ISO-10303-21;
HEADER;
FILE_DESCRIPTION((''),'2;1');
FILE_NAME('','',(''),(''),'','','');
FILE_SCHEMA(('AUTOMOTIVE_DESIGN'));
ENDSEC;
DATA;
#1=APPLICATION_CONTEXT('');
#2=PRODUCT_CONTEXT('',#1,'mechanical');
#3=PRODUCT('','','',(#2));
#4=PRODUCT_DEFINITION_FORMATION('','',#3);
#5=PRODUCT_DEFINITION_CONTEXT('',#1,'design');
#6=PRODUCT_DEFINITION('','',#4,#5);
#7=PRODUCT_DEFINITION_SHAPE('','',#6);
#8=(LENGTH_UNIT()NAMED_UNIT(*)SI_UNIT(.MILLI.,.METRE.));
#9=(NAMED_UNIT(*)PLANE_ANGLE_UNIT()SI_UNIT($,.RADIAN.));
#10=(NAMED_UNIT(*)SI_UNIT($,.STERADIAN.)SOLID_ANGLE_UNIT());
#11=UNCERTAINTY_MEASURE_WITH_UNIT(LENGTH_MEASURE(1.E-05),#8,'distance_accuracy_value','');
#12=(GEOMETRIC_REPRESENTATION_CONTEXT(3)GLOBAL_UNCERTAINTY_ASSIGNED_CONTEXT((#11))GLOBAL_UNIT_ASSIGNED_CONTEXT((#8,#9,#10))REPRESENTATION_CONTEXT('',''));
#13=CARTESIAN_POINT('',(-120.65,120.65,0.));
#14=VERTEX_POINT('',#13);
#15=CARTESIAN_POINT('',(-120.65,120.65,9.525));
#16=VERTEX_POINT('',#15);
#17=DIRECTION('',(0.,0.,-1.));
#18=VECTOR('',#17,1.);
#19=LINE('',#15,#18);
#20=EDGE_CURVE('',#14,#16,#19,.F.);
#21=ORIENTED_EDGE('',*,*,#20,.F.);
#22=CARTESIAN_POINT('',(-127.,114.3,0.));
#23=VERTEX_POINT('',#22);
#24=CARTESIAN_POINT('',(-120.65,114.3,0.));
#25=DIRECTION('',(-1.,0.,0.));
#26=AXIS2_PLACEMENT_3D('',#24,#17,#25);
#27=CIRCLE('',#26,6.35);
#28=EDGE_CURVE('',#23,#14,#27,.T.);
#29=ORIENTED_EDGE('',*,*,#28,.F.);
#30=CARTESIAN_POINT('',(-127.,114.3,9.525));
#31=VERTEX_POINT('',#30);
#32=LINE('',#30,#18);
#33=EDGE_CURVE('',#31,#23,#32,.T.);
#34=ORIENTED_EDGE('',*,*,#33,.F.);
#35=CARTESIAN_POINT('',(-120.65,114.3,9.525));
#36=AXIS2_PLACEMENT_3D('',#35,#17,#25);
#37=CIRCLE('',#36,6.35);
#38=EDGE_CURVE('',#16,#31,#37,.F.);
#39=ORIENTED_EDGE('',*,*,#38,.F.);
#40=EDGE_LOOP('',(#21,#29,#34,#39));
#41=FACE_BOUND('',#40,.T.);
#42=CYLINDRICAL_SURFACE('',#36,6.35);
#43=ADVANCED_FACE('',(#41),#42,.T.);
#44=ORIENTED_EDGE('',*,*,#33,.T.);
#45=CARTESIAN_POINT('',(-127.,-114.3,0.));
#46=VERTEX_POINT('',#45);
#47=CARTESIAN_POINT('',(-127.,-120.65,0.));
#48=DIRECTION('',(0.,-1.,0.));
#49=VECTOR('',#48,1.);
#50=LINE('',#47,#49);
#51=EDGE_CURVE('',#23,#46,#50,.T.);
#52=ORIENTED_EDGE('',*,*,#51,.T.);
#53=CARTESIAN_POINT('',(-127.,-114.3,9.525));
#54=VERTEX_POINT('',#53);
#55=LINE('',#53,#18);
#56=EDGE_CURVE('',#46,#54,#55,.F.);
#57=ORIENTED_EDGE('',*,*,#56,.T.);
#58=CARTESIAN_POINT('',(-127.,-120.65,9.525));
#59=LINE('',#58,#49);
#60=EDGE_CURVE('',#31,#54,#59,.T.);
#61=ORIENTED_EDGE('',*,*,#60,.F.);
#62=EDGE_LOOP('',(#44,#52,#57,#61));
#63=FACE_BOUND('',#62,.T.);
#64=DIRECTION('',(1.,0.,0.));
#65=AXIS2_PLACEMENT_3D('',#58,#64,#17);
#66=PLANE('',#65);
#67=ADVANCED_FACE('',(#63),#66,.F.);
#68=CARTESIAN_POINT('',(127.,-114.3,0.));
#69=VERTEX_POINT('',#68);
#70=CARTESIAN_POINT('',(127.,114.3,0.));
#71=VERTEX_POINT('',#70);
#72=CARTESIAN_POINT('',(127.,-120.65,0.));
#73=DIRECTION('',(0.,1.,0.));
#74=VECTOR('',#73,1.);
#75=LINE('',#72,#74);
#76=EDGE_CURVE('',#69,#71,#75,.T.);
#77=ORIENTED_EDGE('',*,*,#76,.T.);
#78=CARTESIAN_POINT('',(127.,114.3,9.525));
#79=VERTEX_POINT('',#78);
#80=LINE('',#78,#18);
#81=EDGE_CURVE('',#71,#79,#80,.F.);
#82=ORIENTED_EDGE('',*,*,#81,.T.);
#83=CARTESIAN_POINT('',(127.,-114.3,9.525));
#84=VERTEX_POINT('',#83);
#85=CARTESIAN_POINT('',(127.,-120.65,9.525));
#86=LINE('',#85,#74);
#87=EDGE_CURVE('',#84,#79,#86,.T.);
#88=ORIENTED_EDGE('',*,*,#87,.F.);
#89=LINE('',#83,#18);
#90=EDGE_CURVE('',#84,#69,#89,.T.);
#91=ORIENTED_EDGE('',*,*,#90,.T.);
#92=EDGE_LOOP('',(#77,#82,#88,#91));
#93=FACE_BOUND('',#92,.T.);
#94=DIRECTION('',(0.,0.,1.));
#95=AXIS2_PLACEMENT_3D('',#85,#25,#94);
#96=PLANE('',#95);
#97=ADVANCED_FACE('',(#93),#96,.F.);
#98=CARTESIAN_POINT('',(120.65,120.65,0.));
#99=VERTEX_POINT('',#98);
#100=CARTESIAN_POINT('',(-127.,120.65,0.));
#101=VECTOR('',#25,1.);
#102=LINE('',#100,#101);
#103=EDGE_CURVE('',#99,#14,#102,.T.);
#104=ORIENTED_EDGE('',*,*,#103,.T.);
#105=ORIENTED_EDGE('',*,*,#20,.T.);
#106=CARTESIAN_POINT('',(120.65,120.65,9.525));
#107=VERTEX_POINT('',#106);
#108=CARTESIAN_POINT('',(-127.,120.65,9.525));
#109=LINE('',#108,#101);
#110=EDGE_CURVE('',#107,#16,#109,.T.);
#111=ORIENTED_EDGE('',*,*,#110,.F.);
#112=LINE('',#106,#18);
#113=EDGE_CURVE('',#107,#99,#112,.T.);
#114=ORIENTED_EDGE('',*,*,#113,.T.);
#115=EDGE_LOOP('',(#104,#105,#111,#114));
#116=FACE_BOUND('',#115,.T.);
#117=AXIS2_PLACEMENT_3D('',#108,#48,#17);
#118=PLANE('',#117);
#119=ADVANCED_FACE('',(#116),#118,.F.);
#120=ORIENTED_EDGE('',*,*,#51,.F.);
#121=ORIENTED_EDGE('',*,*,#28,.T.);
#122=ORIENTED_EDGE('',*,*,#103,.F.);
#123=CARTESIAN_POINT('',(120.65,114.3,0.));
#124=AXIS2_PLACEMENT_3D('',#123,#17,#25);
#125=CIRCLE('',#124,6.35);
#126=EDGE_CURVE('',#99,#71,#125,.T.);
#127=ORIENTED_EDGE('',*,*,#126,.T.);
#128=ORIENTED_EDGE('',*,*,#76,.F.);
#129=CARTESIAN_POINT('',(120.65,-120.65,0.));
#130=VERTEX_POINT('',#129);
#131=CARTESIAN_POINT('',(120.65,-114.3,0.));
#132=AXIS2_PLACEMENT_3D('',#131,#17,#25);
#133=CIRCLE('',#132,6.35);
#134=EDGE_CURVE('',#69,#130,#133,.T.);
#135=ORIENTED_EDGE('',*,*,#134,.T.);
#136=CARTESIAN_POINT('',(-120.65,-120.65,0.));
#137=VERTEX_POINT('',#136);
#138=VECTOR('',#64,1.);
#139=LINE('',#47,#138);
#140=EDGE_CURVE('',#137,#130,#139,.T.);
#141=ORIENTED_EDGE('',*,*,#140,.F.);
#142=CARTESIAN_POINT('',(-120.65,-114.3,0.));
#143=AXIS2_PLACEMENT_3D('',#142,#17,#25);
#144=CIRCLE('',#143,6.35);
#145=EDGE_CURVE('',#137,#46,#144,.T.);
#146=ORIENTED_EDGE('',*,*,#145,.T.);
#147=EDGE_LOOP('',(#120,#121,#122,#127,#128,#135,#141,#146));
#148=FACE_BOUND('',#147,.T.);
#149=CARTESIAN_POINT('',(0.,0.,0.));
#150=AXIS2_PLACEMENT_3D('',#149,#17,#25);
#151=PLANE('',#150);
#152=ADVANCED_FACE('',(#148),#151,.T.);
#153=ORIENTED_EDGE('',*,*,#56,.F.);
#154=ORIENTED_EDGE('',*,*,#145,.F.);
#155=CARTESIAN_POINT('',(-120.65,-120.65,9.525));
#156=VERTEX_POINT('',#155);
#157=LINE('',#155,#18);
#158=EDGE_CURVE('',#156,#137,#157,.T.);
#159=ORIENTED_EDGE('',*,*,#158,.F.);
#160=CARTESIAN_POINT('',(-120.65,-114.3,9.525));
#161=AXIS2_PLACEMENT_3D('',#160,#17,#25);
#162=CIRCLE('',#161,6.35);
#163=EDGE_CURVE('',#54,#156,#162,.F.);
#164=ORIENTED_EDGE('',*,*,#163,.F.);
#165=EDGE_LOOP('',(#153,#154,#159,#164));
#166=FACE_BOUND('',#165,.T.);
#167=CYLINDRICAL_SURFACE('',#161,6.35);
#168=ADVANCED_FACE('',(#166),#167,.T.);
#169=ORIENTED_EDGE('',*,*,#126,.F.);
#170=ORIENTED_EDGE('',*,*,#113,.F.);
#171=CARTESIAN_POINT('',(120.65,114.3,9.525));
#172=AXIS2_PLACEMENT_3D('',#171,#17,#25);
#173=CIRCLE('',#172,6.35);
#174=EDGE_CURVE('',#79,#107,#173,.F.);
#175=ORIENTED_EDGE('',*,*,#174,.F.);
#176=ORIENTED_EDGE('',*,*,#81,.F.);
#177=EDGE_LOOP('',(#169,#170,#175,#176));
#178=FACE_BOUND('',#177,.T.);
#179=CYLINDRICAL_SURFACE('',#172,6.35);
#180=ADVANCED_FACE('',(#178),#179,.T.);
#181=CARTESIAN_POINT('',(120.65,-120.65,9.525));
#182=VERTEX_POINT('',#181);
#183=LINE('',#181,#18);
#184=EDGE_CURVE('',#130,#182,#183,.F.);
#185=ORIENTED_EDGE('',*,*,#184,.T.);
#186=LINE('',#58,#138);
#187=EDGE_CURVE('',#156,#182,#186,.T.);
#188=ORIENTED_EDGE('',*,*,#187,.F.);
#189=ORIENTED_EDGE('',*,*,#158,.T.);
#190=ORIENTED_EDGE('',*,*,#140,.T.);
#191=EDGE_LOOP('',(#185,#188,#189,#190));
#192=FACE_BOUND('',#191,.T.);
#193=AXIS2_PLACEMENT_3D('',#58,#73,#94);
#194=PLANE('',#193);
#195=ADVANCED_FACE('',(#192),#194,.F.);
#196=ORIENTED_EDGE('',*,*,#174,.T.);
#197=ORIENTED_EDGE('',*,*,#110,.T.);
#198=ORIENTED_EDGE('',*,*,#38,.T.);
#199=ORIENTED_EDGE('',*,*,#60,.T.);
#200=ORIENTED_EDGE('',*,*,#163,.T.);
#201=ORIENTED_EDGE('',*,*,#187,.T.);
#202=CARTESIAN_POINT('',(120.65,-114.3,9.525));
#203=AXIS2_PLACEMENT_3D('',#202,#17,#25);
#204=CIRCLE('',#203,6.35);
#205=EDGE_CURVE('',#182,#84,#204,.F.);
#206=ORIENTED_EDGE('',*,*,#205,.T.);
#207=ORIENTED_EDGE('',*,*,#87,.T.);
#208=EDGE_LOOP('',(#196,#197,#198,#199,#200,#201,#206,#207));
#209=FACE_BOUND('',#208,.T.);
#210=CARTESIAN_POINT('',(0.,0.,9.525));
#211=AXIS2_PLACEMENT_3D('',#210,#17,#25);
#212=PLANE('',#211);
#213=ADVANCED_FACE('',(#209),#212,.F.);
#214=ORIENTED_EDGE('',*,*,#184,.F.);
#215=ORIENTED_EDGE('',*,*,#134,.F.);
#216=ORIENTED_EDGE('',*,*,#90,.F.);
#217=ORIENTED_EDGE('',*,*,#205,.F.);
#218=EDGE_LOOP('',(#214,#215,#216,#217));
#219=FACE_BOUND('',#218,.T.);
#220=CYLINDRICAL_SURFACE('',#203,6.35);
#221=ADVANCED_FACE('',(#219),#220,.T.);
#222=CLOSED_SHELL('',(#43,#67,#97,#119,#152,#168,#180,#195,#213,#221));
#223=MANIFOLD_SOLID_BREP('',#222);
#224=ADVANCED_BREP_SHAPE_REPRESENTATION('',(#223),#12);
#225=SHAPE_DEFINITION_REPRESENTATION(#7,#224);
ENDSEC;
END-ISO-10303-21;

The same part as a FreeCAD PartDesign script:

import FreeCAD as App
import Part
import Sketcher
Q = App.Units.Quantity


def edges_at(feature, points):
    """Names of the edges that pass closest to the given points."""
    edges = feature.Shape.Edges
    near = lambda p: min(range(len(edges)), key=lambda i: edges[i].distToShape(Part.Vertex(*p))[0])
    return sorted({f"Edge{near(p) + 1}" for p in points})

doc = App.newDocument("Part")
body = doc.addObject("PartDesign::Body", "Body")

sketch1 = doc.addObject("Sketcher::SketchObject", "Sketch")
body.addObject(sketch1)
sketch1.AttachmentSupport = (doc.XY_Plane, [""])
sketch1.MapMode = "FlatFace"
sketch1.addGeometry([
    Part.LineSegment(App.Vector(-127, 121, 0), App.Vector(-127, -121, 0)),
    Part.LineSegment(App.Vector(-127, -121, 0), App.Vector(127, -121, 0)),
    Part.LineSegment(App.Vector(127, -121, 0), App.Vector(127, 121, 0)),
    Part.LineSegment(App.Vector(127, 121, 0), App.Vector(-127, 121, 0)),
], False)
sketch1.addConstraint([
    Sketcher.Constraint("Coincident", 0, 2, 1, 1),
    Sketcher.Constraint("Coincident", 1, 2, 2, 1),
    Sketcher.Constraint("Coincident", 2, 2, 3, 1),
    Sketcher.Constraint("Coincident", 3, 2, 0, 1),
    Sketcher.Constraint("Vertical", 0),
    Sketcher.Constraint("Horizontal", 1),
    Sketcher.Constraint("Vertical", 2),
    Sketcher.Constraint("Horizontal", 3),
    Sketcher.Constraint("Symmetric", 0, 2, 2, 2, -1, 1),
    Sketcher.Constraint("DistanceX", 1, 1, 1, 2, Q("10 in")),
    Sketcher.Constraint("DistanceY", 0, 2, 0, 1, Q("9.5 in")),
])
pad1 = doc.addObject("PartDesign::Pad", "Pad")
body.addObject(pad1)
pad1.Profile = sketch1
pad1.Length = Q("0.375 in")
doc.recompute()

fillet = doc.addObject("PartDesign::Fillet", "Fillet")
body.addObject(fillet)
fillet.Base = (pad1, edges_at(pad1, [
    (127, -120.65, 4.763),
    (-127, -120.65, 4.763),
    (-127, 120.65, 4.763),
    (127, 120.65, 4.763),
]))
fillet.Radius = Q("0.25 in")

doc.recompute()
